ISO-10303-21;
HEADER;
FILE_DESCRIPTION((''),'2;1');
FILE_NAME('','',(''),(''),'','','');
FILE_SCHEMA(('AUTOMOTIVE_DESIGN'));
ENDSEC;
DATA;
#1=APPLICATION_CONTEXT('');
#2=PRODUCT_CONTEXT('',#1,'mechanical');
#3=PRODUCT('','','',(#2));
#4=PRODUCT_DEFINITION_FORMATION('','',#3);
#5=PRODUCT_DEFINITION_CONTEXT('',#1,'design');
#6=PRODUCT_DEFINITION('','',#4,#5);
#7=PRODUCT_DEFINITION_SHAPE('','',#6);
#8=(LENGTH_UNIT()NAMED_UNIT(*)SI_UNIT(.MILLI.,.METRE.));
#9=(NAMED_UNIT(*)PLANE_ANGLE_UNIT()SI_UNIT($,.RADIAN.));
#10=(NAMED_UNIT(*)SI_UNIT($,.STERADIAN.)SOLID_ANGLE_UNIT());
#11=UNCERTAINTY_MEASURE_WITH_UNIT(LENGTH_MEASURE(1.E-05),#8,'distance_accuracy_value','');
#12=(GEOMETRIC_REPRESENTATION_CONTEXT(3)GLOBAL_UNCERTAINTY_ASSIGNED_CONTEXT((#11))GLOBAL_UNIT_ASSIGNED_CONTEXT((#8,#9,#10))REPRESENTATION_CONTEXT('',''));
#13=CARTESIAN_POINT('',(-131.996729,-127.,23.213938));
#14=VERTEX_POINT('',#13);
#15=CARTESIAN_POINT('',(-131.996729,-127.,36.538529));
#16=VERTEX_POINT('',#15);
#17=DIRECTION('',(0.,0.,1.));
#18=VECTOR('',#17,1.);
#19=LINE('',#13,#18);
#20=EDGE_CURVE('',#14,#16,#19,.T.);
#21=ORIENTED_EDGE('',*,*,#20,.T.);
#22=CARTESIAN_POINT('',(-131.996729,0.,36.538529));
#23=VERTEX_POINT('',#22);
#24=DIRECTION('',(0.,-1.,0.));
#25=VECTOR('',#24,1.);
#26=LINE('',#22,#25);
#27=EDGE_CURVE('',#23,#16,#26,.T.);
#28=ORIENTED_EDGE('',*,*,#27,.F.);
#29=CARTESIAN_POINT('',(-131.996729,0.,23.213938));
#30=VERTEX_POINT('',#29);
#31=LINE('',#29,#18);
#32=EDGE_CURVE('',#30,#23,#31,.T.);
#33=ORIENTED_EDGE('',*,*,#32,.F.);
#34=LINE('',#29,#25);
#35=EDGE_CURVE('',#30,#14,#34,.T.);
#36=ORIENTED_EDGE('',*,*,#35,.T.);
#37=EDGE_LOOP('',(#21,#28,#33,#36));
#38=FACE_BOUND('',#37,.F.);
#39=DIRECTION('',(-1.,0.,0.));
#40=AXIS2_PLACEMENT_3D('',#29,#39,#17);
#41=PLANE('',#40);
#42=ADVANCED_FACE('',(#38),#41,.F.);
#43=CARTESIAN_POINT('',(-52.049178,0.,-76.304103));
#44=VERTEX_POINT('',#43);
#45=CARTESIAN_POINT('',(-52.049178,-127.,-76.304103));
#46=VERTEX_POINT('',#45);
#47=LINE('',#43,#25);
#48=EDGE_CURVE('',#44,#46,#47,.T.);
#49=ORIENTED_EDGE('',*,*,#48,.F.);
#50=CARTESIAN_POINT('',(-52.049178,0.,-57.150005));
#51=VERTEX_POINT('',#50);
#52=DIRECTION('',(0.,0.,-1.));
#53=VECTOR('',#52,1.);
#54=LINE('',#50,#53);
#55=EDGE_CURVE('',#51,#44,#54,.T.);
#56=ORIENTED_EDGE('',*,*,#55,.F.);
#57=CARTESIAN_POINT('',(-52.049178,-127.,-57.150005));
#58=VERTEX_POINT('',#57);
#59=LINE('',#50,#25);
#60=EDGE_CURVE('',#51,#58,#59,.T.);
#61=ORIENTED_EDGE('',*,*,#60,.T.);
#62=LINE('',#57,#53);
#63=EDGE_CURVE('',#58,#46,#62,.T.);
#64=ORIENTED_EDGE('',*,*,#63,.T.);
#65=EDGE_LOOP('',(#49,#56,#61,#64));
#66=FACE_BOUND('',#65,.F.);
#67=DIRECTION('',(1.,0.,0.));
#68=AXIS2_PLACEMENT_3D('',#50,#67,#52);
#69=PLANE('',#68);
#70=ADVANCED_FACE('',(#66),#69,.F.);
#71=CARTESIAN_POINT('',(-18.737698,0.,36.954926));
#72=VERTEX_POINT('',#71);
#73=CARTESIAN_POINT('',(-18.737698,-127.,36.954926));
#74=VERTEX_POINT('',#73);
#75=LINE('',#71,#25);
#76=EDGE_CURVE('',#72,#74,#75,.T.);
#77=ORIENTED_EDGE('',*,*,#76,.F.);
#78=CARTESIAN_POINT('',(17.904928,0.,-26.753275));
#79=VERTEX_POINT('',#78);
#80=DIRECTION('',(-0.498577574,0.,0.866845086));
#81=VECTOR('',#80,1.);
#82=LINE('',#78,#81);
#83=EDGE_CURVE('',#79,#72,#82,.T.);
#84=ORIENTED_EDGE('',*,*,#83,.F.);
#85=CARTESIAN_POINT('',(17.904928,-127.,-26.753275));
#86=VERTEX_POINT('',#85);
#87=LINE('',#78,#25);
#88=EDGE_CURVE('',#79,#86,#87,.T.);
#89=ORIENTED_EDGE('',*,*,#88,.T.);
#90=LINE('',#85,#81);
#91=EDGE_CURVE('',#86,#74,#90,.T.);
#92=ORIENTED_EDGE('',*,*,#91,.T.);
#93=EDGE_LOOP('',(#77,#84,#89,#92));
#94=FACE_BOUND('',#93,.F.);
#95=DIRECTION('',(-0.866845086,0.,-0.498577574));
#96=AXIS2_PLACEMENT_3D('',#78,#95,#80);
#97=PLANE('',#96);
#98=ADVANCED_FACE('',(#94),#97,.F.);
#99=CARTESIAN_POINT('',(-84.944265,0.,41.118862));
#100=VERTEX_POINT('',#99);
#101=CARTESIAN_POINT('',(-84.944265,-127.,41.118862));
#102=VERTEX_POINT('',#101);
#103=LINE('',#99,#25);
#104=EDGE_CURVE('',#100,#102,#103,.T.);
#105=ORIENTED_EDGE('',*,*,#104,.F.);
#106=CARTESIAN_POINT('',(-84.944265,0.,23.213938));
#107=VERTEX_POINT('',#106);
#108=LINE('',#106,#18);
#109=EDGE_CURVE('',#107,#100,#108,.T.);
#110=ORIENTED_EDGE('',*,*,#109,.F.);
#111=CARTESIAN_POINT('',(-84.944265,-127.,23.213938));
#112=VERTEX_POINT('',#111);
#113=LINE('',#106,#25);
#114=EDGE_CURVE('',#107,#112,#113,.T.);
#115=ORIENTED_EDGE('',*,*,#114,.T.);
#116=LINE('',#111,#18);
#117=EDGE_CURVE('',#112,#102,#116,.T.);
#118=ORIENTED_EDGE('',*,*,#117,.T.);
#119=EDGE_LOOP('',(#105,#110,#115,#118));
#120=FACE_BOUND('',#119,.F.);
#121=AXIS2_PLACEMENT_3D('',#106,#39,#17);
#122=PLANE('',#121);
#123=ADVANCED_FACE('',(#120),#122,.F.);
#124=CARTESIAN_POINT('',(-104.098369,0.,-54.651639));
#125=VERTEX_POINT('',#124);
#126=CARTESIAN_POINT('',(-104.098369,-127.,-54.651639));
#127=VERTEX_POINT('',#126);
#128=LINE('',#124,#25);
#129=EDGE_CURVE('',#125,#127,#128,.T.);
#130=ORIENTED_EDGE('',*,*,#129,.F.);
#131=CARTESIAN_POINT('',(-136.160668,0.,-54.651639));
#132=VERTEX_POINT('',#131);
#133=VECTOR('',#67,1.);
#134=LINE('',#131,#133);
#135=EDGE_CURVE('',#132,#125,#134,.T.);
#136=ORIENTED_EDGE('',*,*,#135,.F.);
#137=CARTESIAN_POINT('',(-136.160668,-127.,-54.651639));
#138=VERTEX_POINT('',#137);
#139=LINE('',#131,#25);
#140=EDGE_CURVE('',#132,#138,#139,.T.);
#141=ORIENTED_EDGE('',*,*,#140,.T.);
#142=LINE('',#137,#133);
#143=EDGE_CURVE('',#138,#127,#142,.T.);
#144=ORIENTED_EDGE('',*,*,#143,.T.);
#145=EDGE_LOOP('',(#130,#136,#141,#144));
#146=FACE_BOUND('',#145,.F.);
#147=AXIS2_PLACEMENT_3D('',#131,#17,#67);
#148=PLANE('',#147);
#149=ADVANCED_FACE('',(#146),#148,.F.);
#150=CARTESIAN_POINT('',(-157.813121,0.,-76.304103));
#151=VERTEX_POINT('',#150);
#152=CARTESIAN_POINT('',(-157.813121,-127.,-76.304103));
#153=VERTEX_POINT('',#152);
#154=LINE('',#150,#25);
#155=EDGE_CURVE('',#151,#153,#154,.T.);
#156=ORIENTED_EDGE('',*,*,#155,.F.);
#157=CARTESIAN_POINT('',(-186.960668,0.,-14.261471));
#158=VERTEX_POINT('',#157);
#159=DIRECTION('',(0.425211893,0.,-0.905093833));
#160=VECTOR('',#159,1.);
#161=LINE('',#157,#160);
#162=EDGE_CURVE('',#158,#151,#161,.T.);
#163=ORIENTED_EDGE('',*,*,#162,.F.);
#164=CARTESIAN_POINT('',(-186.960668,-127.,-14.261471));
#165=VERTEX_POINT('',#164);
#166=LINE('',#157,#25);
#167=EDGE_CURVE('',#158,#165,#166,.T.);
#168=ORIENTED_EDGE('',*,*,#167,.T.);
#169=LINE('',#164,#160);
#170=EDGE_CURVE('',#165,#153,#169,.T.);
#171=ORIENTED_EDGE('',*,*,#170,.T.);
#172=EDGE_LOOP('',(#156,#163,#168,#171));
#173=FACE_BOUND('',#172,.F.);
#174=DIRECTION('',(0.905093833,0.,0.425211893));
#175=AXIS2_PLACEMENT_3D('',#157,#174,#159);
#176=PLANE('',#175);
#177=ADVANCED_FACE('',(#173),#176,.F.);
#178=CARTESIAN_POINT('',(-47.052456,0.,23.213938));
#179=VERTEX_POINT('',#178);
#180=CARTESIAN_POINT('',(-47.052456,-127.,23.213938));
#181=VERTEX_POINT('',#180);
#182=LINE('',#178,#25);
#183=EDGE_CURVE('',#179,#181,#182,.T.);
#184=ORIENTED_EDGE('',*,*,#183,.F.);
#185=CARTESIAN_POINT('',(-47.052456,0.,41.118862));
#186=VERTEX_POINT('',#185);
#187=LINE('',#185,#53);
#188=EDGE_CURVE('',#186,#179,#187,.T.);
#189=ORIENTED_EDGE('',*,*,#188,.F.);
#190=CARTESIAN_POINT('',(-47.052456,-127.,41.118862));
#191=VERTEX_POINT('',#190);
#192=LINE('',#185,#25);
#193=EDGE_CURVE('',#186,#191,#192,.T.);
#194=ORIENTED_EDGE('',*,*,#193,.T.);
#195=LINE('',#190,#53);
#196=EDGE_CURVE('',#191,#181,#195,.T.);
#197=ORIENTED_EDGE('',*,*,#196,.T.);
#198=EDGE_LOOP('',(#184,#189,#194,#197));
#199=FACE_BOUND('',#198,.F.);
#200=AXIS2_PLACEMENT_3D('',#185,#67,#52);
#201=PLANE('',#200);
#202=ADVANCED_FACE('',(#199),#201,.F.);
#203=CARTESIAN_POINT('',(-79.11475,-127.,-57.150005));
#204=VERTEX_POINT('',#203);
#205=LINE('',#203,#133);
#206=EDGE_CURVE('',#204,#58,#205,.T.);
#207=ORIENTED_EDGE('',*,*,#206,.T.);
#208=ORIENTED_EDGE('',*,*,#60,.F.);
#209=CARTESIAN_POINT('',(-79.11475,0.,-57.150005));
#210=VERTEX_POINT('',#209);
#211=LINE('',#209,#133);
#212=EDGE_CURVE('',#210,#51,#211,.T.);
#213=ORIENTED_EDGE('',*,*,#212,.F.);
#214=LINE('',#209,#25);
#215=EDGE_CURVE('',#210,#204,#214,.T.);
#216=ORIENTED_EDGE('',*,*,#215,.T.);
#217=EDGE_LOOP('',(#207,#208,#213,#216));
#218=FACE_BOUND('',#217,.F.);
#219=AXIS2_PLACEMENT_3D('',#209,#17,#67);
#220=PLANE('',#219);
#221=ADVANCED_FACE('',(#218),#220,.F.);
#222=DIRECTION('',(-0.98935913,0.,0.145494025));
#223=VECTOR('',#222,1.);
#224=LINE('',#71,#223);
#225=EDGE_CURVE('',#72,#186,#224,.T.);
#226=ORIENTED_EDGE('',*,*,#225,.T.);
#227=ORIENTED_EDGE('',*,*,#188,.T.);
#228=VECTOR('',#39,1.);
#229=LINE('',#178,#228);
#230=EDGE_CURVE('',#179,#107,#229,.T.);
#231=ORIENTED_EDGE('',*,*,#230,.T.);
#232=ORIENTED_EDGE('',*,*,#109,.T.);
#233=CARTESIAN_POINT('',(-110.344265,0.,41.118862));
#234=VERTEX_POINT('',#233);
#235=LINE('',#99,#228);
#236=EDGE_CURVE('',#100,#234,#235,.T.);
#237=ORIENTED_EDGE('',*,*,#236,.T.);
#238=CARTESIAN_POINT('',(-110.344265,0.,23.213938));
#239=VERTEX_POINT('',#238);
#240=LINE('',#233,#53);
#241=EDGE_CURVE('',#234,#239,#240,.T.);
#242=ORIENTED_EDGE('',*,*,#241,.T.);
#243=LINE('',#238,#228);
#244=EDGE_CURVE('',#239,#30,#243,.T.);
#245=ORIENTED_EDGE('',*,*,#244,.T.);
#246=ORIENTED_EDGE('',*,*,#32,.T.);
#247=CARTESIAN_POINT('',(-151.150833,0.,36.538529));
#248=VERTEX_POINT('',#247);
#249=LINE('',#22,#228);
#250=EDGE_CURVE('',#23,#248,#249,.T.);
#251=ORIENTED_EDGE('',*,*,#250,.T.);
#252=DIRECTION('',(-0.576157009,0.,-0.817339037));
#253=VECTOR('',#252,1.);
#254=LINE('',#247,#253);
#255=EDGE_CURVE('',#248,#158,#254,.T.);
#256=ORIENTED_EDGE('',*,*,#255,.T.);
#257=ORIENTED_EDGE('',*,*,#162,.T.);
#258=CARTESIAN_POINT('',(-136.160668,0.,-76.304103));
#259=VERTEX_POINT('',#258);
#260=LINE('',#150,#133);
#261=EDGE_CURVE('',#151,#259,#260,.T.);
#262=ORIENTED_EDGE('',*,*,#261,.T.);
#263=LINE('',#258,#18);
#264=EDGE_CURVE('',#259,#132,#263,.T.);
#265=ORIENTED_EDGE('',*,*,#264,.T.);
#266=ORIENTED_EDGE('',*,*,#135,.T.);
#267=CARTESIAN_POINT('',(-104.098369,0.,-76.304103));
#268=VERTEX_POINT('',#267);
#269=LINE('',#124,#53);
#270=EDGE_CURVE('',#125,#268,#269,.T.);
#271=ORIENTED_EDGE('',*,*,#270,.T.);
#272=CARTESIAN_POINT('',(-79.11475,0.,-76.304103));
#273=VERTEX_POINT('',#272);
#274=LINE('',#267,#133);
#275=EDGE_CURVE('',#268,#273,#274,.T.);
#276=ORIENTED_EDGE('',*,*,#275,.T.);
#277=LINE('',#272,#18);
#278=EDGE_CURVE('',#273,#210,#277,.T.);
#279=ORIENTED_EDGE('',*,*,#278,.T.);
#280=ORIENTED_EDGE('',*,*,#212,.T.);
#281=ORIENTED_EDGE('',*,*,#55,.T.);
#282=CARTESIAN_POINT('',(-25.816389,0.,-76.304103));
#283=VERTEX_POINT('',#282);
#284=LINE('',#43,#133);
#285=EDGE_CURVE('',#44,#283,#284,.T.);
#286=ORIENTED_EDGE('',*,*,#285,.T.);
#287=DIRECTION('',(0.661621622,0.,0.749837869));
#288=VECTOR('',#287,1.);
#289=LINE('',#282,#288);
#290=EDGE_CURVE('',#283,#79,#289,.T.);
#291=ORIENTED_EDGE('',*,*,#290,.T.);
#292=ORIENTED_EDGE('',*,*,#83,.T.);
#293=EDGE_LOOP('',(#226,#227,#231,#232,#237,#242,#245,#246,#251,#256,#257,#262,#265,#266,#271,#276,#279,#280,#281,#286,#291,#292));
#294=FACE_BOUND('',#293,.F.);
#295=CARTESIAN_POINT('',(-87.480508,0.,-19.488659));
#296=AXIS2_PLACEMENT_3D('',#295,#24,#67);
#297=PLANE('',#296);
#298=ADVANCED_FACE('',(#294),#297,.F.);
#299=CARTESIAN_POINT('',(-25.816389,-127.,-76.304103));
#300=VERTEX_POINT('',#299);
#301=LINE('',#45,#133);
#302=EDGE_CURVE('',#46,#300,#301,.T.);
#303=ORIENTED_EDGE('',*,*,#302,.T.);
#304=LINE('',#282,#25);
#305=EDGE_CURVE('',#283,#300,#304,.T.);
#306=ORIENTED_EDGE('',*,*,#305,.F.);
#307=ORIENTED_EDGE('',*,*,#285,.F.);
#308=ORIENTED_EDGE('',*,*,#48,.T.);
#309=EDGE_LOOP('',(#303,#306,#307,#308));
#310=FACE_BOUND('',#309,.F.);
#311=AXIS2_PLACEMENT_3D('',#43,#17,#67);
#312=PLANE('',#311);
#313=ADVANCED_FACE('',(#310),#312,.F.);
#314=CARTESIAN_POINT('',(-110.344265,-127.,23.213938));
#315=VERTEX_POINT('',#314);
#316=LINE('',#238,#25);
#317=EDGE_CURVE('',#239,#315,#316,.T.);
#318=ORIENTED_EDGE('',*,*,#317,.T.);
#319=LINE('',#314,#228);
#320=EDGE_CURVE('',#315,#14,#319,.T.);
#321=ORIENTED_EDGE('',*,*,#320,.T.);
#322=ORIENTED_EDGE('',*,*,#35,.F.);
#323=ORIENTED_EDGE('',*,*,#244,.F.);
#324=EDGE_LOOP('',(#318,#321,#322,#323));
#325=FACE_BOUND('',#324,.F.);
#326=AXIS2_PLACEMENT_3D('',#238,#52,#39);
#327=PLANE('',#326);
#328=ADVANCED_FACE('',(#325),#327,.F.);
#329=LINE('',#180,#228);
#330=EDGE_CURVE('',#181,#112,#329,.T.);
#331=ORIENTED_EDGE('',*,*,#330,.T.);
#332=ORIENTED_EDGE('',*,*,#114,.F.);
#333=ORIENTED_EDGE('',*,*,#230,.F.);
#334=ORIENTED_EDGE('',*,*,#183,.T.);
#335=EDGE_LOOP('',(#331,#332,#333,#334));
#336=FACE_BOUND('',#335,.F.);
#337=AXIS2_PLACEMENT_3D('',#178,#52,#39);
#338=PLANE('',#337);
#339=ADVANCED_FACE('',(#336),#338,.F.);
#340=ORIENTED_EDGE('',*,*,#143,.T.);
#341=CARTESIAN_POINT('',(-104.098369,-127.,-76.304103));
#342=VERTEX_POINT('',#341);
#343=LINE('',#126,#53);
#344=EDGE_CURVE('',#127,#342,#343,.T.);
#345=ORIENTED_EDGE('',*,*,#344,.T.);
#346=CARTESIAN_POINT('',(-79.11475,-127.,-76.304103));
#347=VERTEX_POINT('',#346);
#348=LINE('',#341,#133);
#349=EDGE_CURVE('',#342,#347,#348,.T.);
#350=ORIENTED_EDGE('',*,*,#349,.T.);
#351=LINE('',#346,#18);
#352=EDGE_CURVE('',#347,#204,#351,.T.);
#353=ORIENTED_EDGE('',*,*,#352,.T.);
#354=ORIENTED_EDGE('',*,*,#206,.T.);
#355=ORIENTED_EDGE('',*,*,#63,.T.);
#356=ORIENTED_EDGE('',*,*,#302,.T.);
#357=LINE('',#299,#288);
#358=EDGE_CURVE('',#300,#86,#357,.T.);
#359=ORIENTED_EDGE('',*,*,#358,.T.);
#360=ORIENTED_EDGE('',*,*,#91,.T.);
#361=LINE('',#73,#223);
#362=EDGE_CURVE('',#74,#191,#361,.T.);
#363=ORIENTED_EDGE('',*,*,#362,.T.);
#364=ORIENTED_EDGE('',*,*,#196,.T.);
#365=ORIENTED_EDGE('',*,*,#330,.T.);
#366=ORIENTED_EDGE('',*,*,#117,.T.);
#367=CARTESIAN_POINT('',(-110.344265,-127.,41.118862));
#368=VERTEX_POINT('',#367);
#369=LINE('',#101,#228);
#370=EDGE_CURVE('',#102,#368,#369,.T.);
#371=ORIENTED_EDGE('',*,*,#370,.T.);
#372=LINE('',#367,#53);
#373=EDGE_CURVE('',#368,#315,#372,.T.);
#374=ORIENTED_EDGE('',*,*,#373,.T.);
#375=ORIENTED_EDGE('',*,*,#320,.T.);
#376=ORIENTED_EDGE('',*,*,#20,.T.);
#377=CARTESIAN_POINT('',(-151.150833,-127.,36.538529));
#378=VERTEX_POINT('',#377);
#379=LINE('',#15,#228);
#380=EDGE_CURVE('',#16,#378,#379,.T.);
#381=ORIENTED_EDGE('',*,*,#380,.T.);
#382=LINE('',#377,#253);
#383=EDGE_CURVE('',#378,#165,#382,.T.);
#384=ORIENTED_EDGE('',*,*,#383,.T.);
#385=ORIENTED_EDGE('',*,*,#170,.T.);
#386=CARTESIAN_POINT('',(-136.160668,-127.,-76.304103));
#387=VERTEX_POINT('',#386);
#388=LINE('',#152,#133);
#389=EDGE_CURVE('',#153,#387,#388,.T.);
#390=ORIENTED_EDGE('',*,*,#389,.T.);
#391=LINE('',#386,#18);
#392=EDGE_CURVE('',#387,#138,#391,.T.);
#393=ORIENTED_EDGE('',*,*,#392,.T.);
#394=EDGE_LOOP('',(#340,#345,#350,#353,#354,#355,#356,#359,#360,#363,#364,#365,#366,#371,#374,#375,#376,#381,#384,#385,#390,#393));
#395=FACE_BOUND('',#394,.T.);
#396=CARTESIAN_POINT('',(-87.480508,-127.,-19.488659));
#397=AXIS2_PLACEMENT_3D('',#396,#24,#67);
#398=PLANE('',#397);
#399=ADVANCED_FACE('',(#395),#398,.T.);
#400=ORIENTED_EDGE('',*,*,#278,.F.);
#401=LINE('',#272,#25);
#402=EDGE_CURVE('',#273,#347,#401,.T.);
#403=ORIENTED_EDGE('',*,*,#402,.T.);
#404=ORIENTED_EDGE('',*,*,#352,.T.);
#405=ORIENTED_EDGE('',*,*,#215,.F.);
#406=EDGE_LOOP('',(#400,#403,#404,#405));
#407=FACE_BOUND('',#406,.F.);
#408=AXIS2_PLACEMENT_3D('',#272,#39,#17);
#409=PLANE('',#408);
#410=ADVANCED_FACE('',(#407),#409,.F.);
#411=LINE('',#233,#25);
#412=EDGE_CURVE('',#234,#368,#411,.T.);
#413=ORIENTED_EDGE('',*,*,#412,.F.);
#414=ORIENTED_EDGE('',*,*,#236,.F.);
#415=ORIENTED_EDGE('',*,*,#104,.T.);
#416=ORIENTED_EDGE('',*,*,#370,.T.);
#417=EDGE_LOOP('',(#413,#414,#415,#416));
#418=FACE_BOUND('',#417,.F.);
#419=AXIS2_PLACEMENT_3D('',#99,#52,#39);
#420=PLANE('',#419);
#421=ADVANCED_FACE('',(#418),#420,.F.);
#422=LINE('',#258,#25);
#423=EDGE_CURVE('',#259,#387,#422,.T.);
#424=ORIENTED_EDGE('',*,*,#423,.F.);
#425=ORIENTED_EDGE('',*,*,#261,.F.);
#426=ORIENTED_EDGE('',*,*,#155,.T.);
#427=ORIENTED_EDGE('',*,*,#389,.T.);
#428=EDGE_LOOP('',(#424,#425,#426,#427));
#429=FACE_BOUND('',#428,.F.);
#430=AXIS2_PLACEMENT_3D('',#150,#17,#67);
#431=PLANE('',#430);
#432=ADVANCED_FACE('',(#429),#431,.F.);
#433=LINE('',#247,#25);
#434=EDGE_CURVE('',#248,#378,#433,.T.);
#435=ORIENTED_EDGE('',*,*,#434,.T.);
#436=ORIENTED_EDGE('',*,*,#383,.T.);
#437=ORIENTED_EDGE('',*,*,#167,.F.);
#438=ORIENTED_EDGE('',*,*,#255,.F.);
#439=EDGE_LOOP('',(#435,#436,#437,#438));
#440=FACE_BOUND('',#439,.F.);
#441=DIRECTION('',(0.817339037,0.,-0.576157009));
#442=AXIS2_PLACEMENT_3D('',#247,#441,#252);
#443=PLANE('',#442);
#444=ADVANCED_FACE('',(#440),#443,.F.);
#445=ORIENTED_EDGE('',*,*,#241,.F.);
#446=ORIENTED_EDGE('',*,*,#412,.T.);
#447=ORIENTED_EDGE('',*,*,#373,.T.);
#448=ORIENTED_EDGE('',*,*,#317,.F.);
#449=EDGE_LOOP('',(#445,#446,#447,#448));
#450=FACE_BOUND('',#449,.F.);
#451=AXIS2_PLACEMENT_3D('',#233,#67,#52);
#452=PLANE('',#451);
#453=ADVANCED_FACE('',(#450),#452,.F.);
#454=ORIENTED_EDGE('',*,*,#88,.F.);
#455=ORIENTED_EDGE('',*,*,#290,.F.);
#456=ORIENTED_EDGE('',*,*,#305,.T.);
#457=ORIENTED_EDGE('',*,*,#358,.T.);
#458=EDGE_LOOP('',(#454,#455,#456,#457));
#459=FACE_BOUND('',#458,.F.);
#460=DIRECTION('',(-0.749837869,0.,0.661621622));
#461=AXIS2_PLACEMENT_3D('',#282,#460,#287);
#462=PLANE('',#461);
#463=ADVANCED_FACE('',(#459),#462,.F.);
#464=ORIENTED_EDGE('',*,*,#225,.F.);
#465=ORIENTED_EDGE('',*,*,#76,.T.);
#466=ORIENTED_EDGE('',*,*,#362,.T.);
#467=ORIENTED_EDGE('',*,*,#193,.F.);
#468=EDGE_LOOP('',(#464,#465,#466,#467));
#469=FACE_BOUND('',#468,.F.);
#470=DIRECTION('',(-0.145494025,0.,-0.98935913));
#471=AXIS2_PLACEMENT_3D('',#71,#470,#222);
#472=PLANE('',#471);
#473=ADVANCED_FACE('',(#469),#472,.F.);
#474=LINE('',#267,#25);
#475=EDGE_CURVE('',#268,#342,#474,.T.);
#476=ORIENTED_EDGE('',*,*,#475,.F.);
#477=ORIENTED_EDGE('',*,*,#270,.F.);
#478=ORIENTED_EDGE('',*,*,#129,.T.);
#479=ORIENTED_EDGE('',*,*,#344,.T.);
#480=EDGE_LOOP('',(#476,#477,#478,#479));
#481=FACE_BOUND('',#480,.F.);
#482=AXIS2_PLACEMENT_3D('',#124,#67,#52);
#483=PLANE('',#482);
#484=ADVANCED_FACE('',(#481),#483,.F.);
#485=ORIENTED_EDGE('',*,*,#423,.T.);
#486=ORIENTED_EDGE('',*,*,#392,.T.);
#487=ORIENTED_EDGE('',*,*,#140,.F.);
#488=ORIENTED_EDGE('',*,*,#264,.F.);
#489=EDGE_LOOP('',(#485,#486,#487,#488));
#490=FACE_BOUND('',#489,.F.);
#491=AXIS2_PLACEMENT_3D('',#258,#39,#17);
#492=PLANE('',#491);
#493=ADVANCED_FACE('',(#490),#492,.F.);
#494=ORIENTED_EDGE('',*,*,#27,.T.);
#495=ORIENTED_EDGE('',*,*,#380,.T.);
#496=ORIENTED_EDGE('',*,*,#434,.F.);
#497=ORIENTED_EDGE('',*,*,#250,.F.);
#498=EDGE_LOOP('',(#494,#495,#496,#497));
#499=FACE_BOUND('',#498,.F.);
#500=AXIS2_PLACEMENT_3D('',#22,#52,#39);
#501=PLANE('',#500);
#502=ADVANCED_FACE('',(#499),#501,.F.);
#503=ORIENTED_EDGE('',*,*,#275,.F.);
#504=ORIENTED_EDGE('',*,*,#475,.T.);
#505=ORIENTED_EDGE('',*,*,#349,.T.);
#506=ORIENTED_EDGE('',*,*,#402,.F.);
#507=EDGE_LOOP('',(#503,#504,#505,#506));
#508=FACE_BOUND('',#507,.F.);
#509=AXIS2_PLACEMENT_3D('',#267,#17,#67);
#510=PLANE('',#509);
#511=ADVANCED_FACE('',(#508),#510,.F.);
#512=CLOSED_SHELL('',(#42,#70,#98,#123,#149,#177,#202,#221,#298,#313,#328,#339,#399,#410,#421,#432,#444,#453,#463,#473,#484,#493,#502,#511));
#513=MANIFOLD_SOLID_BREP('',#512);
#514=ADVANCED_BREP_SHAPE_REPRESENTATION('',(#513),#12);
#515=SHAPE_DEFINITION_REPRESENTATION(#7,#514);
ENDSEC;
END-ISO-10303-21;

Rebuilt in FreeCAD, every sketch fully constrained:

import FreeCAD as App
import Part
import Sketcher
Q = App.Units.Quantity


def add_polygon(sketch, points):
    """Adds a closed chain of lines whose ends are joined by coincident constraints."""
    first, n = sketch.GeometryCount, len(points)
    for a, b in zip(points, points[1:] + points[:1]):
        sketch.addGeometry(Part.LineSegment(App.Vector(*a, 0), App.Vector(*b, 0)), False)
    for i in range(n):
        sketch.addConstraint(Sketcher.Constraint("Coincident", first + i, 2, first + (i + 1) % n, 1))

doc = App.newDocument("Part")
body = doc.addObject("PartDesign::Body", "Body")

# Sketch on XZ plane
sketch1 = body.newObject("Sketcher::SketchObject", "Sketch")
sketch1.AttachmentSupport = (doc.getObject("XZ_Plane"), [""])
sketch1.MapMode = "FlatFace"
add_polygon(sketch1, [(18, -27), (-19, 37), (-47, 41), (-47, 23), (-85, 23), (-85, 41), (-110, 41), (-110, 23), (-132, 23), (-132, 37), (-151, 37), (-187, -14), (-158, -76), (-136, -76), (-136, -55), (-104, -55), (-104, -76), (-79, -76), (-79, -57), (-52, -57), (-52, -76), (-26, -76)])  # lines 0-21
sketch1.addConstraint([
    Sketcher.Constraint("Vertical", 2),
    Sketcher.Constraint("Horizontal", 3),
    Sketcher.Constraint("Vertical", 4),
    Sketcher.Constraint("Horizontal", 5),
    Sketcher.Constraint("Vertical", 6),
    Sketcher.Constraint("Horizontal", 7),
    Sketcher.Constraint("Vertical", 8),
    Sketcher.Constraint("Horizontal", 9),
    Sketcher.Constraint("Horizontal", 12),
    Sketcher.Constraint("Vertical", 13),
    Sketcher.Constraint("Horizontal", 14),
    Sketcher.Constraint("Vertical", 15),
    Sketcher.Constraint("Horizontal", 16),
    Sketcher.Constraint("Vertical", 17),
    Sketcher.Constraint("Horizontal", 18),
    Sketcher.Constraint("Vertical", 19),
    Sketcher.Constraint("Horizontal", 20),
    Sketcher.Constraint("Horizontal", 1, 2, 4, 2),
    Sketcher.Constraint("Horizontal", 3, 2, 6, 2),
    Sketcher.Constraint("Horizontal", 12, 2, 15, 2),
    Sketcher.Constraint("Horizontal", 16, 2, 19, 2),
    Sketcher.Constraint("Equal", 7, 13),
    Sketcher.Constraint("DistanceX", 5, 2, 5, 1, Q("1 in")),
    Sketcher.Constraint("DistanceY", 10, 2, 9, 2, Q("2 in")),
    Sketcher.Constraint("DistanceX", 10, 2, 12, 2, Q("2 in")),
    Sketcher.Constraint("DistanceY", 17, 2, -1, 1, Q("2.2500002 in")),
    Sketcher.Constraint("DistanceX", 14, 1, 14, 2, 32.062299),
    Sketcher.Constraint("DistanceX", 3, 2, 3, 1, 37.891809),
    Sketcher.Constraint("DistanceX", 16, 1, 16, 2, 24.983619),
    Sketcher.Constraint("DistanceX", 20, 1, 20, 2, 26.232789),
    Sketcher.Constraint("DistanceY", 8, 1, 8, 2, 13.324591),
    Sketcher.Constraint("DistanceX", 0, 2, -1, 1, 18.737698),
    Sketcher.Constraint("DistanceY", 21, 2, 0, 2, 63.708201),
    Sketcher.Constraint("Distance", 10, 62.15291),
    Sketcher.Constraint("DistanceX", 7, 2, 7, 1, 21.652464),
    Sketcher.Constraint("DistanceX", 9, 2, 9, 1, 19.154104),
    Sketcher.Constraint("DistanceX", 12, 1, 12, 2, 21.652453),
    Sketcher.Constraint("DistanceX", 18, 1, 18, 2, 27.065572),
    Sketcher.Constraint("DistanceY", 2, 2, 2, 1, 17.904924),
    Sketcher.Constraint("DistanceY", 17, 1, 17, 2, 19.154098),
    Sketcher.Constraint("DistanceX", 7, 2, -1, 1, 131.996729),
    Sketcher.Constraint("DistanceY", -1, 1, 8, 2, 36.538529),
    Sketcher.Constraint("DistanceX", -1, 1, 21, 2, 17.904928),
    Sketcher.Constraint("DistanceY", 2, 2, 0, 2, 13.740988),
])
pad1 = body.newObject("PartDesign::Pad", "Pad")
pad1.Profile = sketch1
pad1.Length = Q("5 in")

doc.recompute()
